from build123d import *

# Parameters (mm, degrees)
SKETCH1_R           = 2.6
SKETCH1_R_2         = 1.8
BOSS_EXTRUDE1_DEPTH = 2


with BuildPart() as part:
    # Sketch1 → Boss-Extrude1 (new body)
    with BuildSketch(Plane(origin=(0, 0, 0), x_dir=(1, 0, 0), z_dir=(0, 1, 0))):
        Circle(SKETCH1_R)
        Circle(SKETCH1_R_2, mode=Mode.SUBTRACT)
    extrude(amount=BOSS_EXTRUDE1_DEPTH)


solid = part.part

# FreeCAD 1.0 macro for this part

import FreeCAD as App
import Part
import Sketcher

V = App.Vector
Q = App.Units.Quantity

doc = App.newDocument("Part")
body = doc.addObject("PartDesign::Body", "Body")

# Sketch on XZ plane
sketch1 = body.newObject("Sketcher::SketchObject", "Sketch")
sketch1.AttachmentSupport = (doc.getObject("XZ_Plane"), [""])
sketch1.MapMode = "FlatFace"
sketch1.addGeometry([
    Part.Circle(V(0, 0, 0), V(0, 0, 1), 2.6),
    Part.Circle(V(0, 0, 0), V(0, 0, 1), 1.8),
], False)
sketch1.addConstraint([
    Sketcher.Constraint("Coincident", 0, 3, -1, 1),
    Sketcher.Constraint("Coincident", 1, 3, -1, 1),
    Sketcher.Constraint("Diameter", 0, Q("5.2 mm")),
    Sketcher.Constraint("Diameter", 1, Q("3.6 mm")),
])
pad1 = body.newObject("PartDesign::Pad", "Pad")
pad1.Profile = sketch1
pad1.Length = 2
pad1.Reversed = True

doc.recompute()
